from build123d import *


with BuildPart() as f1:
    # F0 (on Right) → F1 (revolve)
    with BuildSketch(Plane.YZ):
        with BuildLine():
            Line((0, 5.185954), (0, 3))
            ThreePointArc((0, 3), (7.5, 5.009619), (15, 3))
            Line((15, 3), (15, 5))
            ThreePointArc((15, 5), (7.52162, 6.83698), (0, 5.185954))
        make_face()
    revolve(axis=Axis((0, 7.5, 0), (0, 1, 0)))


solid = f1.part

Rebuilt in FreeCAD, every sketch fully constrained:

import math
import FreeCAD as App
import Part
import Sketcher

V = App.Vector
Q = App.Units.Quantity

doc = App.newDocument("Part")
body = doc.addObject("PartDesign::Body", "Body")

sketch1 = body.newObject("Sketcher::SketchObject", "Sketch")
sketch1.AttachmentSupport = (doc.getObject("YZ_Plane"), [""])
sketch1.MapMode = "FlatFace"
sketch1.addGeometry([
    Part.LineSegment(V(0, 5.2, 0), V(0, 3, 0)),
    Part.ArcOfCircle(Part.Circle(V(7.5, -10, 0), V(0, 0, 1), 15), math.radians(60), math.radians(120)),
    Part.LineSegment(V(15, 3, 0), V(15, 5, 0)),
    Part.ArcOfCircle(Part.Circle(V(7.3, -10.2, 0), V(0, 0, 1), 17), math.radians(63), math.radians(115)),
], False)
sketch1.addConstraint([
    Sketcher.Constraint("Coincident", 0, 2, 1, 2),
    Sketcher.Constraint("Coincident", 1, 1, 2, 1),
    Sketcher.Constraint("Coincident", 2, 2, 3, 1),
    Sketcher.Constraint("Coincident", 3, 2, 0, 1),
    Sketcher.Constraint("Vertical", 0),
    Sketcher.Constraint("Vertical", 2),
    Sketcher.Constraint("PointOnObject", 0, 2, -2),
    Sketcher.Constraint("Horizontal", 0, 2, 1, 1),
    Sketcher.Constraint("Radius", 1, Q("15 mm")),
    Sketcher.Constraint("Radius", 3, Q("17 mm")),
    Sketcher.Constraint("DistanceY", 2, 1, 2, 2, Q("2 mm")),
    Sketcher.Constraint("DistanceY", -1, 1, 0, 2, Q("3 mm")),
    Sketcher.Constraint("DistanceX", -1, 1, 1, 1, Q("15 mm")),
    Sketcher.Constraint("DistanceY", 0, 2, 0, 1, Q("2.185954 mm")),
])
revolution = body.newObject("PartDesign::Revolution", "Revolution")
revolution.Profile = sketch1
revolution.ReferenceAxis = (sketch1, ["H_Axis"])
revolution.Angle = 360

doc.recompute()
